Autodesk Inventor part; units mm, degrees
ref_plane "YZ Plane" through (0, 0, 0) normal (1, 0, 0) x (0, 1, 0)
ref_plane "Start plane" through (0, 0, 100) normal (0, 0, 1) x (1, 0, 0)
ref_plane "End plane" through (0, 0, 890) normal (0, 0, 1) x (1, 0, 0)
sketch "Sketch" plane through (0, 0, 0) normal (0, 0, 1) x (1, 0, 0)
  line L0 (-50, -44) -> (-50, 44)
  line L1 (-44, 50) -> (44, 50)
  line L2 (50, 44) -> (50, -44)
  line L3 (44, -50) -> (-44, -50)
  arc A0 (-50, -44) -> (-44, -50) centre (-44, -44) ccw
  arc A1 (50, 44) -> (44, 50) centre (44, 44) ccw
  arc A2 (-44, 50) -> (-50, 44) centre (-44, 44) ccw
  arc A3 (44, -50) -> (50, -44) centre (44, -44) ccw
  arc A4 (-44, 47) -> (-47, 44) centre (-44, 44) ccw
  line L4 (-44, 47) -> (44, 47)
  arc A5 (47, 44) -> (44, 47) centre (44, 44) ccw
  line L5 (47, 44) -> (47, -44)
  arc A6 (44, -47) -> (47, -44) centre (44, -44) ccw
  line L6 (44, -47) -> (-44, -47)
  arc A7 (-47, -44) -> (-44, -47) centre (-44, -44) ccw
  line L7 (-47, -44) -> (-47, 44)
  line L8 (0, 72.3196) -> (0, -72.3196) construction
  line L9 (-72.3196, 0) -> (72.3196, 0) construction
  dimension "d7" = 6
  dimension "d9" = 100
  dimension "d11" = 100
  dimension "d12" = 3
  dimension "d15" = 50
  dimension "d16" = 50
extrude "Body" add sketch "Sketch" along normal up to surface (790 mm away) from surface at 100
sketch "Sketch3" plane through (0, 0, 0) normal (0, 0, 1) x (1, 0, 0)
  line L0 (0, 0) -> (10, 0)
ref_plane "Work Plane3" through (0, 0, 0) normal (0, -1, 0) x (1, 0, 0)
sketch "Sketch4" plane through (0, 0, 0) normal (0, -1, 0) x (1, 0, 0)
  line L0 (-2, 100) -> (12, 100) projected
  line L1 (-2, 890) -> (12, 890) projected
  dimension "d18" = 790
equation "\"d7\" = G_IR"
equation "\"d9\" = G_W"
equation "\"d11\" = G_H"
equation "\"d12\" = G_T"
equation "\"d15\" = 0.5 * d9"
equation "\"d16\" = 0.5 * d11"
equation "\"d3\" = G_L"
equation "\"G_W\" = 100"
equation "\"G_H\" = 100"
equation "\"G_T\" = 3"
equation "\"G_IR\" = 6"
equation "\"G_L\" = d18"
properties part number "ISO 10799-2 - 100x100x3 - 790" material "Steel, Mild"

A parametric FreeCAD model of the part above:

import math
import FreeCAD as App
import Part
import Sketcher
from FreeCAD import Vector
Q = App.Units.Quantity

doc = App.newDocument("Part")
body = doc.addObject("PartDesign::Body", "Body")

# Sketch on XY plane
sketch1 = body.newObject("Sketcher::SketchObject", "Sketch")
sketch1.AttachmentSupport = (doc.getObject("XY_Plane"), [""])
sketch1.MapMode = "FlatFace"
sketch1.AttachmentOffset = App.Placement(Vector(0, 0, 100), App.Rotation())
sketch1.addGeometry(Part.LineSegment(Vector(-50, 44, 0), Vector(-50, -44, 0)), False)
sketch1.addGeometry(Part.ArcOfCircle(Part.Circle(Vector(-44, -44, 0), Vector(0, 0, 1), 6), math.radians(180), math.radians(270)), False)
sketch1.addGeometry(Part.LineSegment(Vector(-44, -50, 0), Vector(44, -50, 0)), False)
sketch1.addGeometry(Part.ArcOfCircle(Part.Circle(Vector(44, -44, 0), Vector(0, 0, 1), 6), math.radians(-90), math.radians(0)), False)
sketch1.addGeometry(Part.LineSegment(Vector(50, -44, 0), Vector(50, 44, 0)), False)
sketch1.addGeometry(Part.ArcOfCircle(Part.Circle(Vector(44, 44, 0), Vector(0, 0, 1), 6), math.radians(0), math.radians(90)), False)
sketch1.addGeometry(Part.LineSegment(Vector(44, 50, 0), Vector(-44, 50, 0)), False)
sketch1.addGeometry(Part.ArcOfCircle(Part.Circle(Vector(-44, 44, 0), Vector(0, 0, 1), 6), math.radians(90), math.radians(180)), False)
sketch1.addGeometry(Part.ArcOfCircle(Part.Circle(Vector(-44, 44, 0), Vector(0, 0, 1), 3), math.radians(90), math.radians(180)), False)
sketch1.addGeometry(Part.LineSegment(Vector(-44, 47, 0), Vector(44, 47, 0)), False)
sketch1.addGeometry(Part.ArcOfCircle(Part.Circle(Vector(44, 44, 0), Vector(0, 0, 1), 3), math.radians(0), math.radians(90)), False)
sketch1.addGeometry(Part.LineSegment(Vector(47, 44, 0), Vector(47, -44, 0)), False)
sketch1.addGeometry(Part.ArcOfCircle(Part.Circle(Vector(44, -44, 0), Vector(0, 0, 1), 3), math.radians(-90), math.radians(0)), False)
sketch1.addGeometry(Part.LineSegment(Vector(44, -47, 0), Vector(-44, -47, 0)), False)
sketch1.addGeometry(Part.ArcOfCircle(Part.Circle(Vector(-44, -44, 0), Vector(0, 0, 1), 3), math.radians(180), math.radians(270)), False)
sketch1.addGeometry(Part.LineSegment(Vector(-47, -44, 0), Vector(-47, 44, 0)), False)
sketch1.addConstraint(Sketcher.Constraint("Tangent", 0, 2, 1, 1))
sketch1.addConstraint(Sketcher.Constraint("Tangent", 1, 2, 2, 1))
sketch1.addConstraint(Sketcher.Constraint("Tangent", 2, 2, 3, 1))
sketch1.addConstraint(Sketcher.Constraint("Tangent", 3, 2, 4, 1))
sketch1.addConstraint(Sketcher.Constraint("Tangent", 4, 2, 5, 1))
sketch1.addConstraint(Sketcher.Constraint("Tangent", 5, 2, 6, 1))
sketch1.addConstraint(Sketcher.Constraint("Tangent", 6, 2, 7, 1))
sketch1.addConstraint(Sketcher.Constraint("Tangent", 7, 2, 0, 1))
sketch1.addConstraint(Sketcher.Constraint("Tangent", 8, 1, 9, 1))
sketch1.addConstraint(Sketcher.Constraint("Tangent", 9, 2, 10, 2))
sketch1.addConstraint(Sketcher.Constraint("Tangent", 10, 1, 11, 1))
sketch1.addConstraint(Sketcher.Constraint("Tangent", 11, 2, 12, 2))
sketch1.addConstraint(Sketcher.Constraint("Tangent", 12, 1, 13, 1))
sketch1.addConstraint(Sketcher.Constraint("Tangent", 13, 2, 14, 2))
sketch1.addConstraint(Sketcher.Constraint("Tangent", 14, 1, 15, 1))
sketch1.addConstraint(Sketcher.Constraint("Tangent", 15, 2, 8, 2))
sketch1.addConstraint(Sketcher.Constraint("Vertical", 0))
sketch1.addConstraint(Sketcher.Constraint("Horizontal", 2))
sketch1.addConstraint(Sketcher.Constraint("Vertical", 4))
sketch1.addConstraint(Sketcher.Constraint("Horizontal", 6))
sketch1.addConstraint(Sketcher.Constraint("Horizontal", 9))
sketch1.addConstraint(Sketcher.Constraint("Vertical", 11))
sketch1.addConstraint(Sketcher.Constraint("Horizontal", 13))
sketch1.addConstraint(Sketcher.Constraint("Vertical", 15))
sketch1.addConstraint(Sketcher.Constraint("Coincident", 8, 3, 7, 3))
sketch1.addConstraint(Sketcher.Constraint("Coincident", 10, 3, 5, 3))
sketch1.addConstraint(Sketcher.Constraint("Coincident", 12, 3, 3, 3))
sketch1.addConstraint(Sketcher.Constraint("Equal", 1, 3))
sketch1.addConstraint(Sketcher.Constraint("Equal", 3, 5))
sketch1.addConstraint(Sketcher.Constraint("Equal", 5, 7))
sketch1.addConstraint(Sketcher.Constraint("Equal", 12, 14))
sketch1.addConstraint(Sketcher.Constraint("Symmetric", 1, 3, 5, 3, -1, 1))
sketch1.addConstraint(Sketcher.Constraint("Equal", 13, 0))
sketch1.addConstraint(Sketcher.Constraint("Radius", 1, Q("6 mm")))
sketch1.addConstraint(Sketcher.Constraint("Radius", 8, Q("3 mm")))
sketch1.addConstraint(Sketcher.Constraint("DistanceX", 0, 2, -1, 1, Q("50 mm")))
pad1 = body.newObject("PartDesign::Pad", "Pad")
pad1.Profile = sketch1
pad1.Length = 790

doc.recompute()
